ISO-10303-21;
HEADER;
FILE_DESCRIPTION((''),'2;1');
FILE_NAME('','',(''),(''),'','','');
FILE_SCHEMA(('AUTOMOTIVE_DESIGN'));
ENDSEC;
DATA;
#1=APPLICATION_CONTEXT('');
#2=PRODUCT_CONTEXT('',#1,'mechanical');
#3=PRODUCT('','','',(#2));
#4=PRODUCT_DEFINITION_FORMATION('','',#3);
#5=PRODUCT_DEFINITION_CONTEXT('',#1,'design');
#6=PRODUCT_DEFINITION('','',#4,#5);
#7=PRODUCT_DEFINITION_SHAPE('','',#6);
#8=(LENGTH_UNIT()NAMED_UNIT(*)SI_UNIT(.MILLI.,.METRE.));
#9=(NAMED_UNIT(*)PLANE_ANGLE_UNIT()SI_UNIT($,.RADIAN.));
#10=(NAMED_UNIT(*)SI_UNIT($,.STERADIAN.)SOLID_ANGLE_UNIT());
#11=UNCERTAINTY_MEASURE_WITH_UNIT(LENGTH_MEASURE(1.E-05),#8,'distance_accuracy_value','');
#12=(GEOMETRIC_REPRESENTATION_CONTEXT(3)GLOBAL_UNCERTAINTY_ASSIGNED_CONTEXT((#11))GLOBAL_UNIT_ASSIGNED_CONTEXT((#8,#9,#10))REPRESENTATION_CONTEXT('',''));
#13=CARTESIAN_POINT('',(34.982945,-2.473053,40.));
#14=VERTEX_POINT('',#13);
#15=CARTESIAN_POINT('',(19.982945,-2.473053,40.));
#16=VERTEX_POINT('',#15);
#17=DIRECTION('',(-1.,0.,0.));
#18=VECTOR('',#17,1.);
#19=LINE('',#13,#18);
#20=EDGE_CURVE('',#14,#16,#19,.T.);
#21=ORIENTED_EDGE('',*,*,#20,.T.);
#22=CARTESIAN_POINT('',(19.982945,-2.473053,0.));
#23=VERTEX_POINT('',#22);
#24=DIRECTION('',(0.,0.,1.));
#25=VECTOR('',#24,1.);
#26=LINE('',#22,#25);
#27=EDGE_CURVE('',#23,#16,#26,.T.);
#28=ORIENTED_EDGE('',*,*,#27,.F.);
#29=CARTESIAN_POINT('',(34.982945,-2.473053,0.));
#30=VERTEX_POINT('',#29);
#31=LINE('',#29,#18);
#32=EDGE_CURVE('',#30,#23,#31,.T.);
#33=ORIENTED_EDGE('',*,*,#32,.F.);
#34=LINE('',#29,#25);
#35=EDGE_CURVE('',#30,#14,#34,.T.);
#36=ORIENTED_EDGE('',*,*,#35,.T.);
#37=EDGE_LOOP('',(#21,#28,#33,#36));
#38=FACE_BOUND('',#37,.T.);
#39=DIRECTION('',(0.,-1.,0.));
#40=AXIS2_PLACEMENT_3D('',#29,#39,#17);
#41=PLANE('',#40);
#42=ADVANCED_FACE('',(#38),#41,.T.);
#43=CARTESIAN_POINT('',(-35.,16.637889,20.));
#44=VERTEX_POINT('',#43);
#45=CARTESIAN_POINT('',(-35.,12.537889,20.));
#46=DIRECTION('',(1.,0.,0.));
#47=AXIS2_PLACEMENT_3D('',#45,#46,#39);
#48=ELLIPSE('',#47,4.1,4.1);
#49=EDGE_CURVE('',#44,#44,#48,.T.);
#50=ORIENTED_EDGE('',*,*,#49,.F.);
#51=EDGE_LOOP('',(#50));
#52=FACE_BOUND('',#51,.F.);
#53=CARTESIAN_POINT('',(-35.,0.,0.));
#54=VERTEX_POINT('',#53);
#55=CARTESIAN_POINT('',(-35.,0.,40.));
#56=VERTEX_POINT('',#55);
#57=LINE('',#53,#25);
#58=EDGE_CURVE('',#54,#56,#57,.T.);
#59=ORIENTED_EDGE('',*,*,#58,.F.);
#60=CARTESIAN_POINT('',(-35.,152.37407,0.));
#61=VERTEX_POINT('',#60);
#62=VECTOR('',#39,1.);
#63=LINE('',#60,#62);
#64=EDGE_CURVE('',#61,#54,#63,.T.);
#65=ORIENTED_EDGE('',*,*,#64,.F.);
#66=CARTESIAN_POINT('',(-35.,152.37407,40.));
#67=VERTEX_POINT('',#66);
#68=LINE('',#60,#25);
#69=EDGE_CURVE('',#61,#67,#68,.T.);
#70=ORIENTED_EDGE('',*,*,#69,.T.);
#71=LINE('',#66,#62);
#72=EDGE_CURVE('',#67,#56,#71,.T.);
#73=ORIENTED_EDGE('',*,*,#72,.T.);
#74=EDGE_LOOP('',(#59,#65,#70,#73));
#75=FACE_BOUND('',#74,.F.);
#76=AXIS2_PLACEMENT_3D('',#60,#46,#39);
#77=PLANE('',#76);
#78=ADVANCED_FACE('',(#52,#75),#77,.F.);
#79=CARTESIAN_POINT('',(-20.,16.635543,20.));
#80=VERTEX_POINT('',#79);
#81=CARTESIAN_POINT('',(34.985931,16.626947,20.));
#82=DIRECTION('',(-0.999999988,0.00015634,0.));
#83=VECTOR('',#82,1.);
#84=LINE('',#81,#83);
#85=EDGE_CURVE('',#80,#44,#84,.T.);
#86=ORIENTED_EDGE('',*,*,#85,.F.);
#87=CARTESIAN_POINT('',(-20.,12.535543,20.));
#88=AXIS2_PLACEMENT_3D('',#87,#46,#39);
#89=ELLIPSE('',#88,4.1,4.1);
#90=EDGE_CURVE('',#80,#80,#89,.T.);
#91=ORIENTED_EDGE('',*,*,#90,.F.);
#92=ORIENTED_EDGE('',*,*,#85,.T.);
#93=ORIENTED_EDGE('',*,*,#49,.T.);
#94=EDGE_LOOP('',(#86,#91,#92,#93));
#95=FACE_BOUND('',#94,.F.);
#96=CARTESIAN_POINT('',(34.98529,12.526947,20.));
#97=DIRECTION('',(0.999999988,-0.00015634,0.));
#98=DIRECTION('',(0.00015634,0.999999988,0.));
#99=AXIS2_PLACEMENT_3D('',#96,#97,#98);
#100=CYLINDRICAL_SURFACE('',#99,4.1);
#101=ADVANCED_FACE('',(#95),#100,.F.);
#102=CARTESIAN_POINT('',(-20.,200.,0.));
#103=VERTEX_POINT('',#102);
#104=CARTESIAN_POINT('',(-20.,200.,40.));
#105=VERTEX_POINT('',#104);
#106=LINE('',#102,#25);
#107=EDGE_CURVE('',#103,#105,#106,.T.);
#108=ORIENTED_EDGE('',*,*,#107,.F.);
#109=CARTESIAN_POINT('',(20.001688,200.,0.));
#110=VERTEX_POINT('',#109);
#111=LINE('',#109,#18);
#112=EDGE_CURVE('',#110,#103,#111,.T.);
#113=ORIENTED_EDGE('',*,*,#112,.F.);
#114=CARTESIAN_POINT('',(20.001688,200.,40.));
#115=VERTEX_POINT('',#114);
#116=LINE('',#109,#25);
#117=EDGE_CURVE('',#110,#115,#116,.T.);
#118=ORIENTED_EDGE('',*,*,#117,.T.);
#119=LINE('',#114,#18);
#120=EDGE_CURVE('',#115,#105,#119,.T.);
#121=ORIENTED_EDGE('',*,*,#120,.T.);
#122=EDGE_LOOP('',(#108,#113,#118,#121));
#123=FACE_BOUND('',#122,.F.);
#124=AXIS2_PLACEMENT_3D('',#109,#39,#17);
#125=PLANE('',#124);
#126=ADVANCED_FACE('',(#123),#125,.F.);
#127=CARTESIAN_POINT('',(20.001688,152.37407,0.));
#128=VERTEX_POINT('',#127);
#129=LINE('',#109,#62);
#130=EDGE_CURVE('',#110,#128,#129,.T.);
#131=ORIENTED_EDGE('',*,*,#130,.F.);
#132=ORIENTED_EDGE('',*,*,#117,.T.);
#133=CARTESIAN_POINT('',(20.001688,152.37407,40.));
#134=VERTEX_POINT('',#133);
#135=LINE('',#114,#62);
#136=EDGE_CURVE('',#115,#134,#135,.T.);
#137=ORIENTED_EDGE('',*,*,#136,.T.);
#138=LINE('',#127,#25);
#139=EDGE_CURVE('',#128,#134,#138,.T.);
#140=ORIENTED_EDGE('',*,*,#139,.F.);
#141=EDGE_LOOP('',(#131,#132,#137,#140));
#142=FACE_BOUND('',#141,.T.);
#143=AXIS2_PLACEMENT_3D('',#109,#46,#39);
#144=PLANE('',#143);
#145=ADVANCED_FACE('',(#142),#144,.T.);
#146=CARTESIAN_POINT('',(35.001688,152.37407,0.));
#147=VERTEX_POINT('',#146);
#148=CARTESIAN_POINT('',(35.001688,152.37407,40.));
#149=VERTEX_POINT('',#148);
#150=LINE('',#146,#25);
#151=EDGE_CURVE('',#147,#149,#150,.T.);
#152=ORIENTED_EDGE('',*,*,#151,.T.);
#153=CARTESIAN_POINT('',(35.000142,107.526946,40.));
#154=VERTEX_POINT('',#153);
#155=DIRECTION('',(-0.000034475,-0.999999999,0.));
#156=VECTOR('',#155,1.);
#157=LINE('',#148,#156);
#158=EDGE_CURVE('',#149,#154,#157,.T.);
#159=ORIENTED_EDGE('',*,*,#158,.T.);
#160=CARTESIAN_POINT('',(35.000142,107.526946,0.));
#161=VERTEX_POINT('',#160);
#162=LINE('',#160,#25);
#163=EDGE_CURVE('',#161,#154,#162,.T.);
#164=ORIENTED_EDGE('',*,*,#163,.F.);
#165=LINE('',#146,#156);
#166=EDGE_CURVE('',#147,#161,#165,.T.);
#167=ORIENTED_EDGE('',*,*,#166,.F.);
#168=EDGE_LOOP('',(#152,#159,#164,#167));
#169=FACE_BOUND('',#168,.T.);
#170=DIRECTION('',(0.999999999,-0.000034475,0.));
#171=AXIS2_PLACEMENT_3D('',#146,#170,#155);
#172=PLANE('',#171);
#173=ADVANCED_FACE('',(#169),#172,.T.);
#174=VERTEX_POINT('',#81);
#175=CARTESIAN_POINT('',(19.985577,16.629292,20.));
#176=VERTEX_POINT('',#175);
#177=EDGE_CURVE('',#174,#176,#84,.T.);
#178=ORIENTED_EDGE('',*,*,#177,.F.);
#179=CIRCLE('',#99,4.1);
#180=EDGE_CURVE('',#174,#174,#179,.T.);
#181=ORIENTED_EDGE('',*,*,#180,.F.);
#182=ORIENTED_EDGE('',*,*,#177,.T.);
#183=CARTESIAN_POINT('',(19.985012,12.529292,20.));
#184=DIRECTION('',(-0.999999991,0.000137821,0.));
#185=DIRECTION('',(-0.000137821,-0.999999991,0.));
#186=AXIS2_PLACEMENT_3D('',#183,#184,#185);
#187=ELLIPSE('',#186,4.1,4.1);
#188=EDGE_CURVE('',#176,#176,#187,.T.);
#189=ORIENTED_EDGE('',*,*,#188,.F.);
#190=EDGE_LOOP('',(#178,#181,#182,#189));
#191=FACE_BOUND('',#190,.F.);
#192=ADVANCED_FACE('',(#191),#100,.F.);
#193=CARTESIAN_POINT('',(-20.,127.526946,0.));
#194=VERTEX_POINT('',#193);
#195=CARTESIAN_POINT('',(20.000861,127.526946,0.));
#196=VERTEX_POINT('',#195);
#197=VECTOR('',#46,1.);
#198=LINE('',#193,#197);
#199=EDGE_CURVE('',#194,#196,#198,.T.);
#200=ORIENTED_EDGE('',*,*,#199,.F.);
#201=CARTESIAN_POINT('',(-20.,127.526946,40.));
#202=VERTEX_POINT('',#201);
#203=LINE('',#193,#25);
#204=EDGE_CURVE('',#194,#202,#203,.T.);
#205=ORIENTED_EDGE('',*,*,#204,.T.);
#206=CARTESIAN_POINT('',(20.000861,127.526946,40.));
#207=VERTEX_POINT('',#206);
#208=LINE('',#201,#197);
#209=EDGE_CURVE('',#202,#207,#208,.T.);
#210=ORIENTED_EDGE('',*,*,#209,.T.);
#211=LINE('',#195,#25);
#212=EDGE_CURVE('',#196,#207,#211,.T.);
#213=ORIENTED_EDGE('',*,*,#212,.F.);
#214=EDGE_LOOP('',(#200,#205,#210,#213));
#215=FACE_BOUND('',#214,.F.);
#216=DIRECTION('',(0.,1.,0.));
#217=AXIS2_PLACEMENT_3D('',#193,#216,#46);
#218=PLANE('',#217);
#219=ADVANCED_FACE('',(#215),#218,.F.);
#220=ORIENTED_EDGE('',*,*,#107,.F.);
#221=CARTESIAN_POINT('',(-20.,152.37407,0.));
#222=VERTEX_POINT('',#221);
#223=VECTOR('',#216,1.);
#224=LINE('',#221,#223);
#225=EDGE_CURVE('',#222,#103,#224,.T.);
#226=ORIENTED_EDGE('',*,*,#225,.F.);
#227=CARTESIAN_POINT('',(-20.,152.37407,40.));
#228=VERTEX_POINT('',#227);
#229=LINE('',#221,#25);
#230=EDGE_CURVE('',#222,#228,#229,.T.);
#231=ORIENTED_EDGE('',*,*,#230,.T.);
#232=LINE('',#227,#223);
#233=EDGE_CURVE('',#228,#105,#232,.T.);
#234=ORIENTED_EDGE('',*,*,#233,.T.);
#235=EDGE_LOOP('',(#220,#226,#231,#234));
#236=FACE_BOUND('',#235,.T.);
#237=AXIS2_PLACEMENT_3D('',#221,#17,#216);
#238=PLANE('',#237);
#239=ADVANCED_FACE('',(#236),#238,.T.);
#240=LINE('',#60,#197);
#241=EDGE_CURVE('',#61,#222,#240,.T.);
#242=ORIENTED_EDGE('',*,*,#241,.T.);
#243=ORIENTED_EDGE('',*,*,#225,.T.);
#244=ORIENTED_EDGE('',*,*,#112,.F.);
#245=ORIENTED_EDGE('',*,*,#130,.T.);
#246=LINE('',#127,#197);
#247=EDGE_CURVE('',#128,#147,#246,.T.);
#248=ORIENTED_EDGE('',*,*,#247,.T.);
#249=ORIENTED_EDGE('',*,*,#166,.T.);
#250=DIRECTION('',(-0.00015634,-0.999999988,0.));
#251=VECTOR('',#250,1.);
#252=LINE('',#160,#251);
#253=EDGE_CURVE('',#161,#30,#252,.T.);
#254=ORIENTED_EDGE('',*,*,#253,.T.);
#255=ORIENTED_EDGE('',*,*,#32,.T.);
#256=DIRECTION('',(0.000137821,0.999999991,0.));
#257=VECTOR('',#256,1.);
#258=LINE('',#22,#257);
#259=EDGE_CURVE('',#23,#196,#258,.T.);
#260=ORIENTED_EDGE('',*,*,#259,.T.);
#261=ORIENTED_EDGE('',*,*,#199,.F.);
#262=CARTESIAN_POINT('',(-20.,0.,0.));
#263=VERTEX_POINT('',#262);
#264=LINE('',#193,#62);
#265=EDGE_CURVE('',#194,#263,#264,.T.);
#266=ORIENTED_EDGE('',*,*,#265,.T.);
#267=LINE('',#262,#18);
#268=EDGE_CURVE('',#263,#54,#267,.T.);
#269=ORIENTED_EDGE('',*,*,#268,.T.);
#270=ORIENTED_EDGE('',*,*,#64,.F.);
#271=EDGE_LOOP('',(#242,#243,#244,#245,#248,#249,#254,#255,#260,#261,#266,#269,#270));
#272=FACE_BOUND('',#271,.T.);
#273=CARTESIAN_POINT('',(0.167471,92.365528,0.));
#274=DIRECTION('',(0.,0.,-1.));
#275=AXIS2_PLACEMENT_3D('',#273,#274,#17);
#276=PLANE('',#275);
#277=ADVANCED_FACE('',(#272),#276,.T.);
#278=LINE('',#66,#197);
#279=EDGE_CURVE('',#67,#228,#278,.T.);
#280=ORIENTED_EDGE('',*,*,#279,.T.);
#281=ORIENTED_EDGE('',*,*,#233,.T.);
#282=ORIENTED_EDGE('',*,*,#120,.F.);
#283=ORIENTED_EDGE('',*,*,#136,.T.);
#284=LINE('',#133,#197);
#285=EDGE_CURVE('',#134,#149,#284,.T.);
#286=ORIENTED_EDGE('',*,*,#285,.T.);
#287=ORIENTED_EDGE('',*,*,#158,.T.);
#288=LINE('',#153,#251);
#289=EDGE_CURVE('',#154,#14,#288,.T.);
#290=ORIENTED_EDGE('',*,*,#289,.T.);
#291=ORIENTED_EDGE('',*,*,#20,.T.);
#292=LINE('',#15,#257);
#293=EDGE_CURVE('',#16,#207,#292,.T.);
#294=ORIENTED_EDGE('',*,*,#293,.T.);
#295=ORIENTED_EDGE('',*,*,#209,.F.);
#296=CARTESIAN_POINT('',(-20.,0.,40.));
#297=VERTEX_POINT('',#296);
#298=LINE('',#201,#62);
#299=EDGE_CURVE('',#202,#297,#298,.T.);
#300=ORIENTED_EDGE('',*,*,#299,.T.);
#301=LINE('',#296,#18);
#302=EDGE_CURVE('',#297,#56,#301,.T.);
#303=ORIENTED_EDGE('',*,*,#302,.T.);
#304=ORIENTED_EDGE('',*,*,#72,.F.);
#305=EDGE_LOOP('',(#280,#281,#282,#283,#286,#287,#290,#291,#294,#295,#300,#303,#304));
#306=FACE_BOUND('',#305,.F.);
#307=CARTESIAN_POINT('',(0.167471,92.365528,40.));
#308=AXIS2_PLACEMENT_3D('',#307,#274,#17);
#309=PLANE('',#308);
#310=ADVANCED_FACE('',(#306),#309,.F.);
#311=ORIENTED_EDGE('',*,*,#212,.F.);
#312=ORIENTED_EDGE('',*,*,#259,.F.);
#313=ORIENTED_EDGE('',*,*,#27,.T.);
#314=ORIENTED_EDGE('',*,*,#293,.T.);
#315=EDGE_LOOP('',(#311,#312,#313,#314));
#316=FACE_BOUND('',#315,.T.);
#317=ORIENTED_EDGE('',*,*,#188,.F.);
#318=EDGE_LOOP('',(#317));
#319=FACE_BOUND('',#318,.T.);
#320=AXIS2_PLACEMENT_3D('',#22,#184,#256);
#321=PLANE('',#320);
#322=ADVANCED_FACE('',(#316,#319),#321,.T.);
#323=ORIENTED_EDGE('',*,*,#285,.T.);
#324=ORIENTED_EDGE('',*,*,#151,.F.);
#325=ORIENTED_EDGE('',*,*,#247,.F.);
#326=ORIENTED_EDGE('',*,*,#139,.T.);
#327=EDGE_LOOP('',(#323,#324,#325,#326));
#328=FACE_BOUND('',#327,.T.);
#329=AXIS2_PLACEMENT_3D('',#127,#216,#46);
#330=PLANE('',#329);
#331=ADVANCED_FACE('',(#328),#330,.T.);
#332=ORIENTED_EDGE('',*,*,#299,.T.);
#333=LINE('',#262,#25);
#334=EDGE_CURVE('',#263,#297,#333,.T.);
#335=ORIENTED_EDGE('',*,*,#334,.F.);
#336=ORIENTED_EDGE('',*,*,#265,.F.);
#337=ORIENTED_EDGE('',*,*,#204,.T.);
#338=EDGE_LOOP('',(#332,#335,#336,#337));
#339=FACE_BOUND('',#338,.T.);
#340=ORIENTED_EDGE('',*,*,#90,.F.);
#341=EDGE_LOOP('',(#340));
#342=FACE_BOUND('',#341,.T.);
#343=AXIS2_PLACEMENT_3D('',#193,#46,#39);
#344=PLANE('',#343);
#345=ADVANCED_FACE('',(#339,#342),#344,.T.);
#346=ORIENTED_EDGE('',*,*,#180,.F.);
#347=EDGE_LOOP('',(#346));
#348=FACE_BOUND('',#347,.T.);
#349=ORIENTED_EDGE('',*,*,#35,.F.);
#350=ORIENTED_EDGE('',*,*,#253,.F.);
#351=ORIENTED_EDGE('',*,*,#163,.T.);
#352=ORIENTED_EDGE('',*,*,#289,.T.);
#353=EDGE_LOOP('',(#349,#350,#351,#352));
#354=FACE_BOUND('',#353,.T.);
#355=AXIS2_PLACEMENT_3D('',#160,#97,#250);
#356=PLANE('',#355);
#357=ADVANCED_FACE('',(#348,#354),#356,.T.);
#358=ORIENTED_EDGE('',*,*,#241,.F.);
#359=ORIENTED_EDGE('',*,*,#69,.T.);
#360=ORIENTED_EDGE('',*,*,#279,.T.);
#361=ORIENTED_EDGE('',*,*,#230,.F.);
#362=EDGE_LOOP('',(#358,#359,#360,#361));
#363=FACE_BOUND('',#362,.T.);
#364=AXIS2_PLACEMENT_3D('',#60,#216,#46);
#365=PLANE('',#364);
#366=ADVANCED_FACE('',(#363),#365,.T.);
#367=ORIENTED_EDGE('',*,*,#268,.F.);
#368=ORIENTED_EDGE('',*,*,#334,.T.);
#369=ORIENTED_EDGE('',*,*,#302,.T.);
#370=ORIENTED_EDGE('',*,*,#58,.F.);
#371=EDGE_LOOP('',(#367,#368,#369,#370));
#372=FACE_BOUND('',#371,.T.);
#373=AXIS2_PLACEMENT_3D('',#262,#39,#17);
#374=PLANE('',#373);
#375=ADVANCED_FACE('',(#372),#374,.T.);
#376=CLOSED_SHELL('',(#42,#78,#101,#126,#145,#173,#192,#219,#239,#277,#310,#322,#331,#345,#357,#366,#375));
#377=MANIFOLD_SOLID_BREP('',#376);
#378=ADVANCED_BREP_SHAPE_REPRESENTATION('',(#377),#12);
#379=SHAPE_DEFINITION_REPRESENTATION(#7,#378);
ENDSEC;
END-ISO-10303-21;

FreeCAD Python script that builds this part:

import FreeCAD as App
import Part
import Sketcher

V = App.Vector


def add_polygon(sketch, points):
    """Adds a closed chain of lines whose ends are joined by coincident constraints."""
    first, n = sketch.GeometryCount, len(points)
    for a, b in zip(points, points[1:] + points[:1]):
        sketch.addGeometry(Part.LineSegment(App.Vector(*a, 0), App.Vector(*b, 0)), False)
    for i in range(n):
        sketch.addConstraint(Sketcher.Constraint("Coincident", first + i, 2, first + (i + 1) % n, 1))

doc = App.newDocument("Part")
body = doc.addObject("PartDesign::Body", "Body")

# Sketch on XY plane
sketch1 = doc.addObject("Sketcher::SketchObject", "Sketch")
body.addObject(sketch1)
sketch1.AttachmentSupport = (doc.XY_Plane, [""])
sketch1.MapMode = "FlatFace"
add_polygon(sketch1, [(-35, 152.37407), (-35, 0), (-20, 0), (-20, 127.526946), (20.000861, 127.526946), (19.982945, -2.473053), (34.982945, -2.473053), (35.000142, 107.526946), (35.001688, 152.37407), (20.001688, 152.37407), (20.001688, 200), (-20, 200), (-20, 152.37407)])  # lines 0-12
sketch1.addConstraint(Sketcher.Constraint("Vertical", 0))
sketch1.addConstraint(Sketcher.Constraint("Horizontal", 1))
sketch1.addConstraint(Sketcher.Constraint("Vertical", 2))
sketch1.addConstraint(Sketcher.Constraint("Horizontal", 3))
sketch1.addConstraint(Sketcher.Constraint("Horizontal", 5))
sketch1.addConstraint(Sketcher.Constraint("Horizontal", 8))
sketch1.addConstraint(Sketcher.Constraint("Vertical", 9))
sketch1.addConstraint(Sketcher.Constraint("Horizontal", 10))
sketch1.addConstraint(Sketcher.Constraint("Vertical", 11))
sketch1.addConstraint(Sketcher.Constraint("Horizontal", 12))
sketch1.addConstraint(Sketcher.Constraint("PointOnObject", 0, 2, -1))
sketch1.addConstraint(Sketcher.Constraint("Horizontal", 8, 2, 11, 2))
sketch1.addConstraint(Sketcher.Constraint("Vertical", 2, 2, 10, 2))
sketch1.addConstraint(Sketcher.Constraint("Equal", 1, 5))
sketch1.addConstraint(Sketcher.Constraint("Equal", 5, 8))
sketch1.addConstraint(Sketcher.Constraint("DistanceX", 1, 1, 1, 2, 15.0))
sketch1.addConstraint(Sketcher.Constraint("Distance", 4, 130.0))
sketch1.addConstraint(Sketcher.Constraint("Distance", 6, 110.0))
sketch1.addConstraint(Sketcher.Constraint("DistanceX", 0, 2, -1, 1, 35.0))
sketch1.addConstraint(Sketcher.Constraint("DistanceY", -1, 1, 9, 2, 200.0))
sketch1.addConstraint(Sketcher.Constraint("DistanceX", 3, 1, 3, 2, 40.000861))
sketch1.addConstraint(Sketcher.Constraint("DistanceY", 0, 2, 0, 1, 152.37407))
sketch1.addConstraint(Sketcher.Constraint("DistanceX", 10, 2, 10, 1, 40.001688))
sketch1.addConstraint(Sketcher.Constraint("DistanceY", 2, 1, 2, 2, 127.526946))
sketch1.addConstraint(Sketcher.Constraint("DistanceX", -1, 1, 6, 2, 35.000142))
sketch1.addConstraint(Sketcher.Constraint("DistanceX", -1, 1, 4, 2, 19.982945))
pad1 = doc.addObject("PartDesign::Pad", "Pad")
body.addObject(pad1)
pad1.Profile = sketch1
pad1.Length = 40

# Sketch on an angled plane
sketch2 = doc.addObject("Sketcher::SketchObject", "Sketch001")
body.addObject(sketch2)
sketch2.Placement = App.Placement(V(34.98333, -0.005469, 0), App.Rotation(V(0.00015634, 0.999999988, 0), V(0, 0, 1), V(0.999999988, -0.00015634, 0), "ZXY"))
sketch2.addGeometry(Part.Circle(V(12.532416, 20, 0), V(0, 0, 1), 4.1), False)
sketch2.addConstraint(Sketcher.Constraint("Diameter", 0, 8.2))
sketch2.addConstraint(Sketcher.Constraint("DistanceY", -1, 1, 0, 3, 20.0))
sketch2.addConstraint(Sketcher.Constraint("DistanceX", -1, 1, 0, 3, 12.532416))
pocket1 = doc.addObject("PartDesign::Pocket", "Pocket")
body.addObject(pocket1)
pocket1.Profile = sketch2
pocket1.Type = "ThroughAll"

doc.recompute()
